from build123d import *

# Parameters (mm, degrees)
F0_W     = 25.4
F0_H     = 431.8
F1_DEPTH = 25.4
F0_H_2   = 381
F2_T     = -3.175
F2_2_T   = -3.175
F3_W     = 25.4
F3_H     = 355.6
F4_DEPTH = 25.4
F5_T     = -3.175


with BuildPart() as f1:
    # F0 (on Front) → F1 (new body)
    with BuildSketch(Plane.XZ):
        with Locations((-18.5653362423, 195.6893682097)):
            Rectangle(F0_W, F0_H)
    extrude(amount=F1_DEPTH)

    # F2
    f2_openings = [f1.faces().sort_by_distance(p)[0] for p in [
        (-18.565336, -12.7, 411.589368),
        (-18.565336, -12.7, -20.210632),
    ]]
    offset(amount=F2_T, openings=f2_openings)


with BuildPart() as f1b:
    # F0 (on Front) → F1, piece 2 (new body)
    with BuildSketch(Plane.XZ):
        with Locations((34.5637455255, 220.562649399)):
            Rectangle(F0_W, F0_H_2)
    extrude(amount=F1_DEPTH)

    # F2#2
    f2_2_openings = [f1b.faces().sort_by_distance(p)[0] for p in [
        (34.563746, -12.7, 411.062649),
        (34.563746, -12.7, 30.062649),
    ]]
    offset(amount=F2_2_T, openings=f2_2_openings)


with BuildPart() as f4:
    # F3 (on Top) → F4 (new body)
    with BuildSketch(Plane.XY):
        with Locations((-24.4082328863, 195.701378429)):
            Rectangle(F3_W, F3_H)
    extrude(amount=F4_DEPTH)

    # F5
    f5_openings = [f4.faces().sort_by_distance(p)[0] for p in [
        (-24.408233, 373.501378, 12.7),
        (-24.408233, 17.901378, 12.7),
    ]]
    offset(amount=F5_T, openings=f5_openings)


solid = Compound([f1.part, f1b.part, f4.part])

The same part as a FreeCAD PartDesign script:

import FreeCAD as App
import Part
import Sketcher
from FreeCAD import Vector
Q = App.Units.Quantity


def faces_at(feature, points):
    """Names of the faces that lie closest to the given points."""
    faces = feature.Shape.Faces
    near = lambda p: min(range(len(faces)), key=lambda i: faces[i].distToShape(Part.Vertex(*p))[0])
    return sorted({f"Face{near(p) + 1}" for p in points})


def add_polygon(sketch, points):
    """Adds a closed chain of lines whose ends are joined by coincident constraints."""
    first, n = sketch.GeometryCount, len(points)
    for a, b in zip(points, points[1:] + points[:1]):
        sketch.addGeometry(Part.LineSegment(App.Vector(*a, 0), App.Vector(*b, 0)), False)
    for i in range(n):
        sketch.addConstraint(Sketcher.Constraint("Coincident", first + i, 2, first + (i + 1) % n, 1))

doc = App.newDocument("Part")
body = doc.addObject("PartDesign::Body", "Body")

sketch1 = doc.addObject("Sketcher::SketchObject", "Sketch")
body.addObject(sketch1)
sketch1.AttachmentSupport = (doc.XZ_Plane, [""])
sketch1.MapMode = "FlatFace"
add_polygon(sketch1, [(-31.265336, 411.589368), (-31.265336, -20.210632), (-5.865336, -20.210632), (-5.865336, 411.589368)])
sketch1.addConstraint([
    Sketcher.Constraint("Vertical", 0),
    Sketcher.Constraint("Horizontal", 1),
    Sketcher.Constraint("Vertical", 2),
    Sketcher.Constraint("Horizontal", 3),
    Sketcher.Constraint("DistanceX", 1, 1, 1, 2, Q("1 in")),
    Sketcher.Constraint("DistanceY", 0, 2, 0, 1, Q("17 in")),
    Sketcher.Constraint("DistanceY", 0, 2, -1, 1, Q("20.210632 mm")),
    Sketcher.Constraint("DistanceX", 0, 2, -1, 1, Q("31.265336 mm")),
])
pad1 = doc.addObject("PartDesign::Pad", "Pad")
body.addObject(pad1)
pad1.Profile = sketch1
pad1.Length = Q("1 in")
doc.recompute()

thickness = doc.addObject("PartDesign::Thickness", "Thickness")
body.addObject(thickness)
thickness.Base = (pad1, faces_at(pad1, [(-18.565, -12.7, 411.589), (-18.565, -12.7, -20.211)]))
thickness.Value = Q("0.125 in")
thickness.Reversed = True
thickness.Join = "Arc"
body2 = doc.addObject("PartDesign::Body", "Body001")

sketch2 = doc.addObject("Sketcher::SketchObject", "Sketch001")
body2.addObject(sketch2)
sketch2.AttachmentSupport = (doc.getObject("XZ_Plane001"), [""])
sketch2.MapMode = "FlatFace"
add_polygon(sketch2, [(21.863746, 411.062649), (21.863746, 30.062649), (47.263746, 30.062649), (47.263746, 411.062649)])
sketch2.addConstraint([
    Sketcher.Constraint("Vertical", 0),
    Sketcher.Constraint("Horizontal", 1),
    Sketcher.Constraint("Vertical", 2),
    Sketcher.Constraint("Horizontal", 3),
    Sketcher.Constraint("DistanceX", 1, 1, 1, 2, Q("1 in")),
    Sketcher.Constraint("DistanceY", 0, 2, 0, 1, Q("15 in")),
    Sketcher.Constraint("DistanceY", -1, 1, 0, 2, Q("30.062649 mm")),
    Sketcher.Constraint("DistanceX", -1, 1, 0, 2, Q("21.863746 mm")),
])
pad2 = doc.addObject("PartDesign::Pad", "Pad001")
body2.addObject(pad2)
pad2.Profile = sketch2
pad2.Length = Q("1 in")
doc.recompute()

thickness2 = doc.addObject("PartDesign::Thickness", "Thickness001")
body2.addObject(thickness2)
thickness2.Base = (pad2, faces_at(pad2, [(34.564, -12.7, 411.063), (34.564, -12.7, 30.063)]))
thickness2.Value = Q("0.125 in")
thickness2.Reversed = True
thickness2.Join = "Arc"
body3 = doc.addObject("PartDesign::Body", "Body002")

sketch3 = doc.addObject("Sketcher::SketchObject", "Sketch002")
body3.addObject(sketch3)
sketch3.AttachmentSupport = (doc.getObject("XY_Plane002"), [""])
sketch3.MapMode = "FlatFace"
add_polygon(sketch3, [(-37.108233, 373.501378), (-37.108233, 17.901378), (-11.708233, 17.901378), (-11.708233, 373.501378)])
sketch3.addConstraint([
    Sketcher.Constraint("Vertical", 0),
    Sketcher.Constraint("Horizontal", 1),
    Sketcher.Constraint("Vertical", 2),
    Sketcher.Constraint("Horizontal", 3),
    Sketcher.Constraint("DistanceX", 1, 1, 1, 2, Q("1 in")),
    Sketcher.Constraint("DistanceY", 0, 2, 0, 1, Q("14 in")),
    Sketcher.Constraint("DistanceY", -1, 1, 0, 2, Q("17.901378 mm")),
    Sketcher.Constraint("DistanceX", 0, 2, -1, 1, Q("37.108233 mm")),
])
pad3 = doc.addObject("PartDesign::Pad", "Pad002")
body3.addObject(pad3)
pad3.Profile = sketch3
pad3.Length = Q("1 in")
doc.recompute()

thickness3 = doc.addObject("PartDesign::Thickness", "Thickness002")
body3.addObject(thickness3)
thickness3.Base = (pad3, faces_at(pad3, [(-24.408, 373.501, 12.7), (-24.408, 17.901, 12.7)]))
thickness3.Value = Q("0.125 in")
thickness3.Reversed = True
thickness3.Join = "Arc"

doc.recompute()
